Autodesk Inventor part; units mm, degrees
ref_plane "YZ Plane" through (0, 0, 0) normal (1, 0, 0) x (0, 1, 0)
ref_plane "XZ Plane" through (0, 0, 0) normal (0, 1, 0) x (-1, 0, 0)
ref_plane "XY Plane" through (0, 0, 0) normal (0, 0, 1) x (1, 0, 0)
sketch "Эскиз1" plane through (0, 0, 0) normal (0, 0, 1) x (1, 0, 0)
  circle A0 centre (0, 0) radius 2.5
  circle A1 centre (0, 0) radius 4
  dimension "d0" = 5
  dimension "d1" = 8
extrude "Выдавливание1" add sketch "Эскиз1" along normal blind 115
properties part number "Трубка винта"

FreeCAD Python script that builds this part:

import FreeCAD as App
import Part
import Sketcher

V = App.Vector
Q = App.Units.Quantity

doc = App.newDocument("Part")
params = doc.addObject("Spreadsheet::Sheet", "Params")
for row, (alias, value) in enumerate([
    ("sketch1_diameter", "8 mm"),
    ("sketch1_diameter2", "5 mm"),
    ("pad1_length", "115 mm"),
], start=1):
    params.set(f"A{row}", alias)
    params.set(f"B{row}", "=" + value)
    params.setAlias(f"B{row}", alias)

body = doc.addObject("PartDesign::Body", "Body")

sketch1 = body.newObject("Sketcher::SketchObject", "Sketch")
sketch1.AttachmentSupport = (doc.getObject("XY_Plane"), [""])
sketch1.MapMode = "FlatFace"
sketch1.addGeometry([
    Part.Circle(V(0, 0, 0), V(0, 0, 1), 4),
    Part.Circle(V(0, 0, 0), V(0, 0, 1), 2.5),
], False)
sketch1.addConstraint([
    Sketcher.Constraint("Coincident", 0, 3, -1, 1),
    Sketcher.Constraint("Coincident", 1, 3, -1, 1),
    Sketcher.Constraint("Diameter", 0, Q("8 mm")),
    Sketcher.Constraint("Diameter", 1, Q("5 mm")),
])
sketch1.setExpression("Constraints[2]", "Params.sketch1_diameter")
sketch1.setExpression("Constraints[3]", "Params.sketch1_diameter2")
pad1 = body.newObject("PartDesign::Pad", "Pad")
pad1.Profile = sketch1
pad1.setExpression("Length", "Params.pad1_length")

doc.recompute()
